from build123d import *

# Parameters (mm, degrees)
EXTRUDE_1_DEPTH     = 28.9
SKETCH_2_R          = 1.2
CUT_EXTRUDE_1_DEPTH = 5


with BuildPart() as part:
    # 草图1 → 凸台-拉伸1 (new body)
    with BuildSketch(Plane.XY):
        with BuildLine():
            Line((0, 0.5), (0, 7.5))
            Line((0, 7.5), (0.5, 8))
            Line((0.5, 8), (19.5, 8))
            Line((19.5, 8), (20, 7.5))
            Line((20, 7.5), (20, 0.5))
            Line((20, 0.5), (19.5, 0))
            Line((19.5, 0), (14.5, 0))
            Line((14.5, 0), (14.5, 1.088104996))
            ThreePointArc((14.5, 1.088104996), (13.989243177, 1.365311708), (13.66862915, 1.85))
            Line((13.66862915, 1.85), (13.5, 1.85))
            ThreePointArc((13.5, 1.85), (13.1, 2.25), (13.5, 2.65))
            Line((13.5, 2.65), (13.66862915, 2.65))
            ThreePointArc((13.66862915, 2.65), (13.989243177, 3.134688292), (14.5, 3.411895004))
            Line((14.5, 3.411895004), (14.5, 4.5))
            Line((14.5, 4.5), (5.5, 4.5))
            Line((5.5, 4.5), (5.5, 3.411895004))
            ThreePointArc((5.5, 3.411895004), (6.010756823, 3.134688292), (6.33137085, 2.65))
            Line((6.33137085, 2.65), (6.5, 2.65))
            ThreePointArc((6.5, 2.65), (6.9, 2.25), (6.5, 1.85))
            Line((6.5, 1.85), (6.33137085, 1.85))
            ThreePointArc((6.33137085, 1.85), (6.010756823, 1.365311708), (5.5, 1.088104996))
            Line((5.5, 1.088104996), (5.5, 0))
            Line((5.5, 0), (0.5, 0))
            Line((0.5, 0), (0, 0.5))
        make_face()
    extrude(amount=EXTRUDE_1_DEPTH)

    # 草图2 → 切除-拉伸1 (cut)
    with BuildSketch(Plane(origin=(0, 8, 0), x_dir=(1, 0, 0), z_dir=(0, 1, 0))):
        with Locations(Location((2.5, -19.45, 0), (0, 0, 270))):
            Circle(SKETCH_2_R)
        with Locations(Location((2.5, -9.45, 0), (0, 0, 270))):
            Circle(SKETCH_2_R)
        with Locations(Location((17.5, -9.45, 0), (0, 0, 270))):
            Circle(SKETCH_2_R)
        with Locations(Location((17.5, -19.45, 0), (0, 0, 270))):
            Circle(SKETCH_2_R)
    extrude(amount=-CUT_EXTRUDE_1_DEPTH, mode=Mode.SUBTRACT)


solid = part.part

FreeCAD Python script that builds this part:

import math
import FreeCAD as App
import Part
import Sketcher
Q = App.Units.Quantity

doc = App.newDocument("Part")
body = doc.addObject("PartDesign::Body", "Body")

sketch1 = body.newObject("Sketcher::SketchObject", "Sketch")
sketch1.AttachmentSupport = (doc.getObject("XY_Plane"), [""])
sketch1.MapMode = "FlatFace"
sketch1.addGeometry(Part.LineSegment(App.Vector(0, 7.5, 0), App.Vector(0, 0.5, 0)), False)
sketch1.addGeometry(Part.LineSegment(App.Vector(0, 0.5, 0), App.Vector(0.5, 0, 0)), False)
sketch1.addGeometry(Part.LineSegment(App.Vector(0.5, 0, 0), App.Vector(5.5, 0, 0)), False)
sketch1.addGeometry(Part.LineSegment(App.Vector(5.5, 0, 0), App.Vector(5.5, 1.09, 0)), False)
sketch1.addGeometry(Part.ArcOfCircle(Part.Circle(App.Vector(5.2, 2.25, 0), App.Vector(0, 0, 1), 1.2), math.radians(-76), math.radians(-19)), False)
sketch1.addGeometry(Part.LineSegment(App.Vector(6.33, 1.85, 0), App.Vector(6.5, 1.85, 0)), False)
sketch1.addGeometry(Part.ArcOfCircle(Part.Circle(App.Vector(6.5, 2.25, 0), App.Vector(0, 0, 1), 0.4), math.radians(-90), math.radians(90)), False)
sketch1.addGeometry(Part.LineSegment(App.Vector(6.5, 2.65, 0), App.Vector(6.33, 2.65, 0)), False)
sketch1.addGeometry(Part.ArcOfCircle(Part.Circle(App.Vector(5.2, 2.25, 0), App.Vector(0, 0, 1), 1.2), math.radians(19), math.radians(76)), False)
sketch1.addGeometry(Part.LineSegment(App.Vector(5.5, 3.41, 0), App.Vector(5.5, 4.5, 0)), False)
sketch1.addGeometry(Part.LineSegment(App.Vector(5.5, 4.5, 0), App.Vector(14.5, 4.5, 0)), False)
sketch1.addGeometry(Part.LineSegment(App.Vector(14.5, 4.5, 0), App.Vector(14.5, 3.41, 0)), False)
sketch1.addGeometry(Part.ArcOfCircle(Part.Circle(App.Vector(14.8, 2.25, 0), App.Vector(0, 0, 1), 1.2), math.radians(104), math.radians(161)), False)
sketch1.addGeometry(Part.LineSegment(App.Vector(13.67, 2.65, 0), App.Vector(13.5, 2.65, 0)), False)
sketch1.addGeometry(Part.ArcOfCircle(Part.Circle(App.Vector(13.5, 2.25, 0), App.Vector(0, 0, 1), 0.4), math.radians(90), math.radians(270)), False)
sketch1.addGeometry(Part.LineSegment(App.Vector(13.5, 1.85, 0), App.Vector(13.67, 1.85, 0)), False)
sketch1.addGeometry(Part.ArcOfCircle(Part.Circle(App.Vector(14.8, 2.25, 0), App.Vector(0, 0, 1), 1.2), math.radians(-161), math.radians(-104)), False)
sketch1.addGeometry(Part.LineSegment(App.Vector(14.5, 1.09, 0), App.Vector(14.5, 0, 0)), False)
sketch1.addGeometry(Part.LineSegment(App.Vector(14.5, 0, 0), App.Vector(19.5, 0, 0)), False)
sketch1.addGeometry(Part.LineSegment(App.Vector(19.5, 0, 0), App.Vector(20, 0.5, 0)), False)
sketch1.addGeometry(Part.LineSegment(App.Vector(20, 0.5, 0), App.Vector(20, 7.5, 0)), False)
sketch1.addGeometry(Part.LineSegment(App.Vector(20, 7.5, 0), App.Vector(19.5, 8, 0)), False)
sketch1.addGeometry(Part.LineSegment(App.Vector(19.5, 8, 0), App.Vector(0.5, 8, 0)), False)
sketch1.addGeometry(Part.LineSegment(App.Vector(0.5, 8, 0), App.Vector(0, 7.5, 0)), False)
sketch1.addConstraint(Sketcher.Constraint("Coincident", 0, 2, 1, 1))
sketch1.addConstraint(Sketcher.Constraint("Coincident", 1, 2, 2, 1))
sketch1.addConstraint(Sketcher.Constraint("Coincident", 2, 2, 3, 1))
sketch1.addConstraint(Sketcher.Constraint("Coincident", 3, 2, 4, 1))
sketch1.addConstraint(Sketcher.Constraint("Coincident", 4, 2, 5, 1))
sketch1.addConstraint(Sketcher.Constraint("Tangent", 5, 2, 6, 1))
sketch1.addConstraint(Sketcher.Constraint("Tangent", 6, 2, 7, 1))
sketch1.addConstraint(Sketcher.Constraint("Coincident", 7, 2, 8, 1))
sketch1.addConstraint(Sketcher.Constraint("Coincident", 8, 2, 9, 1))
sketch1.addConstraint(Sketcher.Constraint("Coincident", 9, 2, 10, 1))
sketch1.addConstraint(Sketcher.Constraint("Coincident", 10, 2, 11, 1))
sketch1.addConstraint(Sketcher.Constraint("Coincident", 11, 2, 12, 1))
sketch1.addConstraint(Sketcher.Constraint("Coincident", 12, 2, 13, 1))
sketch1.addConstraint(Sketcher.Constraint("Tangent", 13, 2, 14, 1))
sketch1.addConstraint(Sketcher.Constraint("Tangent", 14, 2, 15, 1))
sketch1.addConstraint(Sketcher.Constraint("Coincident", 15, 2, 16, 1))
sketch1.addConstraint(Sketcher.Constraint("Coincident", 16, 2, 17, 1))
sketch1.addConstraint(Sketcher.Constraint("Coincident", 17, 2, 18, 1))
sketch1.addConstraint(Sketcher.Constraint("Coincident", 18, 2, 19, 1))
sketch1.addConstraint(Sketcher.Constraint("Coincident", 19, 2, 20, 1))
sketch1.addConstraint(Sketcher.Constraint("Coincident", 20, 2, 21, 1))
sketch1.addConstraint(Sketcher.Constraint("Coincident", 21, 2, 22, 1))
sketch1.addConstraint(Sketcher.Constraint("Coincident", 22, 2, 23, 1))
sketch1.addConstraint(Sketcher.Constraint("Coincident", 23, 2, 0, 1))
sketch1.addConstraint(Sketcher.Constraint("Vertical", 0))
sketch1.addConstraint(Sketcher.Constraint("Horizontal", 2))
sketch1.addConstraint(Sketcher.Constraint("Vertical", 3))
sketch1.addConstraint(Sketcher.Constraint("Horizontal", 5))
sketch1.addConstraint(Sketcher.Constraint("Horizontal", 7))
sketch1.addConstraint(Sketcher.Constraint("Vertical", 9))
sketch1.addConstraint(Sketcher.Constraint("Horizontal", 10))
sketch1.addConstraint(Sketcher.Constraint("Vertical", 11))
sketch1.addConstraint(Sketcher.Constraint("Horizontal", 13))
sketch1.addConstraint(Sketcher.Constraint("Horizontal", 15))
sketch1.addConstraint(Sketcher.Constraint("Vertical", 17))
sketch1.addConstraint(Sketcher.Constraint("Horizontal", 18))
sketch1.addConstraint(Sketcher.Constraint("Vertical", 20))
sketch1.addConstraint(Sketcher.Constraint("Horizontal", 22))
sketch1.addConstraint(Sketcher.Constraint("Coincident", 8, 3, 4, 3))
sketch1.addConstraint(Sketcher.Constraint("Coincident", 16, 3, 12, 3))
sketch1.addConstraint(Sketcher.Constraint("Equal", 4, 8))
sketch1.addConstraint(Sketcher.Constraint("Equal", 8, 12))
sketch1.addConstraint(Sketcher.Constraint("Equal", 6, 14))
sketch1.addConstraint(Sketcher.Constraint("Equal", 12, 16))
sketch1.addConstraint(Sketcher.Constraint("PointOnObject", 0, 2, -2))
sketch1.addConstraint(Sketcher.Constraint("PointOnObject", 1, 2, -1))
sketch1.addConstraint(Sketcher.Constraint("PointOnObject", 17, 2, -1))
sketch1.addConstraint(Sketcher.Constraint("Perpendicular", 1, 19))
sketch1.addConstraint(Sketcher.Constraint("Perpendicular", 19, 21))
sketch1.addConstraint(Sketcher.Constraint("Perpendicular", 21, 23))
sketch1.addConstraint(Sketcher.Constraint("Horizontal", 4, 3, 6, 3))
sketch1.addConstraint(Sketcher.Constraint("Horizontal", 8, 3, 12, 3))
sketch1.addConstraint(Sketcher.Constraint("Horizontal", 12, 3, 14, 3))
sketch1.addConstraint(Sketcher.Constraint("Horizontal", 8, 2, 11, 2))
sketch1.addConstraint(Sketcher.Constraint("Horizontal", 3, 2, 16, 2))
sketch1.addConstraint(Sketcher.Constraint("Horizontal", 0, 2, 19, 2))
sketch1.addConstraint(Sketcher.Constraint("Horizontal", 20, 2, 23, 2))
sketch1.addConstraint(Sketcher.Constraint("Vertical", 3, 2, 8, 2))
sketch1.addConstraint(Sketcher.Constraint("Vertical", 18, 2, 21, 2))
sketch1.addConstraint(Sketcher.Constraint("Vertical", 1, 2, 22, 2))
sketch1.addConstraint(Sketcher.Constraint("Equal", 7, 13))
sketch1.addConstraint(Sketcher.Constraint("Equal", 2, 18))
sketch1.addConstraint(Sketcher.Constraint("Equal", 3, 9))
sketch1.addConstraint(Sketcher.Constraint("Radius", 4, Q("1.2 mm")))
sketch1.addConstraint(Sketcher.Constraint("Radius", 6, Q("0.4 mm")))
sketch1.addConstraint(Sketcher.Constraint("DistanceX", 2, 1, 2, 2, Q("5 mm")))
sketch1.addConstraint(Sketcher.Constraint("DistanceX", 10, 1, 10, 2, Q("9 mm")))
sketch1.addConstraint(Sketcher.Constraint("DistanceY", 0, 2, 0, 1, Q("7 mm")))
sketch1.addConstraint(Sketcher.Constraint("DistanceX", -1, 1, 19, 2, Q("20 mm")))
sketch1.addConstraint(Sketcher.Constraint("DistanceX", 6, 3, 14, 3, Q("7 mm")))
sketch1.addConstraint(Sketcher.Constraint("DistanceY", 10, 2, 20, 2, Q("3 mm")))
sketch1.addConstraint(Sketcher.Constraint("DistanceX", -1, 1, 4, 3, Q("5.2 mm")))
pad1 = body.newObject("PartDesign::Pad", "Pad")
pad1.Profile = sketch1
pad1.Length = 28.9

sketch2 = body.newObject("Sketcher::SketchObject", "Sketch001")
sketch2.AttachmentSupport = (doc.getObject("XZ_Plane"), [""])
sketch2.MapMode = "FlatFace"
sketch2.AttachmentOffset = App.Placement(App.Vector(0, 0, -8), App.Rotation())
sketch2.addGeometry(Part.Circle(App.Vector(2.5, 19.4, 0), App.Vector(0, 0, 1), 1.2), False)
sketch2.addGeometry(Part.Circle(App.Vector(2.5, 9.4, 0), App.Vector(0, 0, 1), 1.2), False)
sketch2.addGeometry(Part.Circle(App.Vector(17.5, 9.4, 0), App.Vector(0, 0, 1), 1.2), False)
sketch2.addGeometry(Part.Circle(App.Vector(17.5, 19.4, 0), App.Vector(0, 0, 1), 1.2), False)
sketch2.addConstraint(Sketcher.Constraint("Equal", 0, 1))
sketch2.addConstraint(Sketcher.Constraint("Equal", 1, 2))
sketch2.addConstraint(Sketcher.Constraint("Equal", 2, 3))
sketch2.addConstraint(Sketcher.Constraint("Horizontal", 1, 3, 2, 3))
sketch2.addConstraint(Sketcher.Constraint("Horizontal", 0, 3, 3, 3))
sketch2.addConstraint(Sketcher.Constraint("Vertical", 0, 3, 1, 3))
sketch2.addConstraint(Sketcher.Constraint("Vertical", 2, 3, 3, 3))
sketch2.addConstraint(Sketcher.Constraint("Diameter", 0, Q("2.4 mm")))
sketch2.addConstraint(Sketcher.Constraint("DistanceY", 1, 3, 0, 3, Q("10 mm")))
sketch2.addConstraint(Sketcher.Constraint("DistanceX", 1, 3, 2, 3, Q("15 mm")))
sketch2.addConstraint(Sketcher.Constraint("DistanceX", -1, 1, 0, 3, Q("2.5 mm")))
sketch2.addConstraint(Sketcher.Constraint("DistanceY", -1, 1, 0, 3, Q("19.45 mm")))
pocket1 = body.newObject("PartDesign::Pocket", "Pocket")
pocket1.Profile = sketch2
pocket1.Length = 5
pocket1.Reversed = True

doc.recompute()
